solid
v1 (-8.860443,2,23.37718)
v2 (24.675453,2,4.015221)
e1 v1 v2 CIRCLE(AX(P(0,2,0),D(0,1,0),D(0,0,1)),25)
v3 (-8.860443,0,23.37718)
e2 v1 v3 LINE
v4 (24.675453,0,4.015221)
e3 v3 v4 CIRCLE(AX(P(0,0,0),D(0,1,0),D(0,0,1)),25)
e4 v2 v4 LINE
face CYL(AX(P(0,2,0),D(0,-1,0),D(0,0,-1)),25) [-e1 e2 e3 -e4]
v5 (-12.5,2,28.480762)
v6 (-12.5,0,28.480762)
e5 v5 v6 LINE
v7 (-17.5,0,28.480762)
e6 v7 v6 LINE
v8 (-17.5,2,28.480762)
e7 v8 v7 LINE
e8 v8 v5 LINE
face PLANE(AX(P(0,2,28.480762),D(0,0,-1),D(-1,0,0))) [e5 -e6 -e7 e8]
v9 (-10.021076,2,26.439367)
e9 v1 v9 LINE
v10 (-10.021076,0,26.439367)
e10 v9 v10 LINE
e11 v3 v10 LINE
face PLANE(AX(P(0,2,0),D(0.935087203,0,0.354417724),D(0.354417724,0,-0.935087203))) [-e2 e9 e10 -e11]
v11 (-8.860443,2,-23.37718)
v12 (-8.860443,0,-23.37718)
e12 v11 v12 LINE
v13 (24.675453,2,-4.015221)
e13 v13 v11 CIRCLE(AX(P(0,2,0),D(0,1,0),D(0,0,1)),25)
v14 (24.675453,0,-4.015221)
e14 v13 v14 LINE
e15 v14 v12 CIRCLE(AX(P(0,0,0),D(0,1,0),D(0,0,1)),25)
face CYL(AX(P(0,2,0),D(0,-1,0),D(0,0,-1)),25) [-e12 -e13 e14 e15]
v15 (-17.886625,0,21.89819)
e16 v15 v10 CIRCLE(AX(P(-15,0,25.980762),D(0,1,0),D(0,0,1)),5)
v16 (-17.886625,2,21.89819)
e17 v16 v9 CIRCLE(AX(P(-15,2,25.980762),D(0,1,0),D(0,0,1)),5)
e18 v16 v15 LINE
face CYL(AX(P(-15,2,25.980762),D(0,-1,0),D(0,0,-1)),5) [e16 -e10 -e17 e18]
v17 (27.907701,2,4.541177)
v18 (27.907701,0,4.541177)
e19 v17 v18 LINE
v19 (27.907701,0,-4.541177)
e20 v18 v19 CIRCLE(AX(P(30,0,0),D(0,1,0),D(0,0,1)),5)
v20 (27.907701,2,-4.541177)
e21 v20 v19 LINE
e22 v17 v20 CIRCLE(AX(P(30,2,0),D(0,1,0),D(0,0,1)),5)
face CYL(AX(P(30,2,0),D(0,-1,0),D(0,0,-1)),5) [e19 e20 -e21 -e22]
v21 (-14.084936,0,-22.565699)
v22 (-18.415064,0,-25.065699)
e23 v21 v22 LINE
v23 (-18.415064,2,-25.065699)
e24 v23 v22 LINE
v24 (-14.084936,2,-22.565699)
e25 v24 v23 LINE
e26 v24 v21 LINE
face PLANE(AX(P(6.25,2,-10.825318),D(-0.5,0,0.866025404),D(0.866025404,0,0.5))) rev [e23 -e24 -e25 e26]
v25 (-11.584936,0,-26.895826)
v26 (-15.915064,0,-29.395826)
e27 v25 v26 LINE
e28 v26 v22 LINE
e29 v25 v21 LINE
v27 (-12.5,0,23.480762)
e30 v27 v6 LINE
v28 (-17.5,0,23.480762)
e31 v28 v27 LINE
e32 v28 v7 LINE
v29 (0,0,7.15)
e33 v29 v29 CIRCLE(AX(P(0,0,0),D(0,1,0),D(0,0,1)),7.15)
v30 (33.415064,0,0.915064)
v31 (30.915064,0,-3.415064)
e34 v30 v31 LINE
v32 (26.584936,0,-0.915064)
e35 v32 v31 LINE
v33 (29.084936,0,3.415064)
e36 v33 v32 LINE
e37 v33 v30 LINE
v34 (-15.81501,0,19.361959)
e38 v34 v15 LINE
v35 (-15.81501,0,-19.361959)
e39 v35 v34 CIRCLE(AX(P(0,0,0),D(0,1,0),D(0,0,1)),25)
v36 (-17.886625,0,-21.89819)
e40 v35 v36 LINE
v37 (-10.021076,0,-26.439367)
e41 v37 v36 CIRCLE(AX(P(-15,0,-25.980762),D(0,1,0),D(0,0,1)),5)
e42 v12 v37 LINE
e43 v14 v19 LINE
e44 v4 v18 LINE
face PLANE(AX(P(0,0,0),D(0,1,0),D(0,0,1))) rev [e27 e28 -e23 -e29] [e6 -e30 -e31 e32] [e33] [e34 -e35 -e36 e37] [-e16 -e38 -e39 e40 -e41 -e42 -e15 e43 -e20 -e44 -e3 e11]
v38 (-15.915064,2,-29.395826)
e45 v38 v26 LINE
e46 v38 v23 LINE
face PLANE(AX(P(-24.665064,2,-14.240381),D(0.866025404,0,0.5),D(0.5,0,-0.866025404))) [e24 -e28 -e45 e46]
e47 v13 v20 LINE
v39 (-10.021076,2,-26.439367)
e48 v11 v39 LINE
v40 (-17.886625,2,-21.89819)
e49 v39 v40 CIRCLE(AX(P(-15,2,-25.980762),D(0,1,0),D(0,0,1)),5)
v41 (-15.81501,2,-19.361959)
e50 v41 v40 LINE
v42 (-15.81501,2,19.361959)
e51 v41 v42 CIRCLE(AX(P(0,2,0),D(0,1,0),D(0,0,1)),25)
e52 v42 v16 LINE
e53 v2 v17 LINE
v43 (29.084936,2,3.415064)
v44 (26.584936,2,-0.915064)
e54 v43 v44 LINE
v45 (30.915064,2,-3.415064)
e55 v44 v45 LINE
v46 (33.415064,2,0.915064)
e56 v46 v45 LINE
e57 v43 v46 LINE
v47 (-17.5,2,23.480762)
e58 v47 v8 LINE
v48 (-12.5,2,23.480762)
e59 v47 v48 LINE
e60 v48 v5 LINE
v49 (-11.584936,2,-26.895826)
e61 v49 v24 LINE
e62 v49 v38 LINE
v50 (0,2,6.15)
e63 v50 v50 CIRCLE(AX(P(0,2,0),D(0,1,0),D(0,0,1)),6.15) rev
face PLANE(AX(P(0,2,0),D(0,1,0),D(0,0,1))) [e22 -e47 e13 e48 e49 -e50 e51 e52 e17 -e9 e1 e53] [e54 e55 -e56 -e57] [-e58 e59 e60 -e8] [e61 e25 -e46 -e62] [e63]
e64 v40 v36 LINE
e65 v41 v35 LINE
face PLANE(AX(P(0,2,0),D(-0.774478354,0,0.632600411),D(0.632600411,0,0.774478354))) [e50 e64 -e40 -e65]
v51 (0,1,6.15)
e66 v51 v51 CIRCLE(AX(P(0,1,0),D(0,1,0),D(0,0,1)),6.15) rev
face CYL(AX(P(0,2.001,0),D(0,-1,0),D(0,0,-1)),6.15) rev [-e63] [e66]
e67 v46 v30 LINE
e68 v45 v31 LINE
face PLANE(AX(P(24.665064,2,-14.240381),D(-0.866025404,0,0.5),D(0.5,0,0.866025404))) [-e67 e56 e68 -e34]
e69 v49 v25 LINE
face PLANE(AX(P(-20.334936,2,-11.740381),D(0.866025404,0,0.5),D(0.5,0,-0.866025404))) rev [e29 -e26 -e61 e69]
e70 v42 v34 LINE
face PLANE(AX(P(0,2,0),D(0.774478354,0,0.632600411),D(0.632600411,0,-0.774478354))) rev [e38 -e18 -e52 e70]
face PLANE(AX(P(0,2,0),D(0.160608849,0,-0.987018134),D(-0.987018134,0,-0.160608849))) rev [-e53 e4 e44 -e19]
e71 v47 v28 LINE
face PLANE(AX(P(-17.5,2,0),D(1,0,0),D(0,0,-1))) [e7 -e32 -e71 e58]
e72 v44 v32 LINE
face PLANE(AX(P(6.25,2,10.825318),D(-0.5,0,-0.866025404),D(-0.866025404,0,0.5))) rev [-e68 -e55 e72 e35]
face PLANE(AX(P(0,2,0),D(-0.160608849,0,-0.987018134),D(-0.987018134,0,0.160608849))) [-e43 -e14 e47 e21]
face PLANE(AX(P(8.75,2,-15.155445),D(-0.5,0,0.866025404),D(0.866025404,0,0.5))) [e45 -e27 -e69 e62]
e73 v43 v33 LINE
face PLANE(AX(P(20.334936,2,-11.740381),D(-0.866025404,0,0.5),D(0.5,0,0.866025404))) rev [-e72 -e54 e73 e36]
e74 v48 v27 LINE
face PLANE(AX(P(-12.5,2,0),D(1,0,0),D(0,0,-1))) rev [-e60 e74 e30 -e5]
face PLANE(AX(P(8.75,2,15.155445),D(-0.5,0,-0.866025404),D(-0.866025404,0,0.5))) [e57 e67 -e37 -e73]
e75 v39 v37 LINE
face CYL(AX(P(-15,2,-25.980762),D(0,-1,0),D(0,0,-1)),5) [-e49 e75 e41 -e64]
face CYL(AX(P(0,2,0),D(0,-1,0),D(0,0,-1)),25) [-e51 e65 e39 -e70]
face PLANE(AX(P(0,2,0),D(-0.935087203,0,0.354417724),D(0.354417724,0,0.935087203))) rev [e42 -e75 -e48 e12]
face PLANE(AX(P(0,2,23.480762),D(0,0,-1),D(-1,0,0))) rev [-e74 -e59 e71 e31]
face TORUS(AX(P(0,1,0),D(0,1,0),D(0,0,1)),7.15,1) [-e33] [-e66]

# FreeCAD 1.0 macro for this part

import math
import FreeCAD as App
import Part
import Sketcher
Q = App.Units.Quantity


def edges_at(feature, points):
    """Names of the edges that pass closest to the given points."""
    edges = feature.Shape.Edges
    near = lambda p: min(range(len(edges)), key=lambda i: edges[i].distToShape(Part.Vertex(*p))[0])
    return sorted({f"Edge{near(p) + 1}" for p in points})


def add_polygon(sketch, points):
    """Adds a closed chain of lines whose ends are joined by coincident constraints."""
    first, n = sketch.GeometryCount, len(points)
    for a, b in zip(points, points[1:] + points[:1]):
        sketch.addGeometry(Part.LineSegment(App.Vector(*a, 0), App.Vector(*b, 0)), False)
    for i in range(n):
        sketch.addConstraint(Sketcher.Constraint("Coincident", first + i, 2, first + (i + 1) % n, 1))

doc = App.newDocument("Part")
params = doc.addObject("Spreadsheet::Sheet", "Params")
for row, (alias, value) in enumerate([
    ("sketch1_radius", "25 mm"),
    ("sketch1_radius2", "5 mm"),
    ("sketch1_width", "5 mm"),
    ("sketch1_length", "5 mm"),
    ("pad1_length", "2 mm"),
    ("sketch2_diameter", "12.3 mm"),
    ("fillet_radius", "1 mm"),
], start=1):
    params.set(f"A{row}", alias)
    params.set(f"B{row}", "=" + value)
    params.setAlias(f"B{row}", alias)

body = doc.addObject("PartDesign::Body", "Body")

# Sketch on XZ plane
sketch1 = doc.addObject("Sketcher::SketchObject", "Sketch")
body.addObject(sketch1)
sketch1.AttachmentSupport = (doc.XZ_Plane, [""])
sketch1.MapMode = "FlatFace"
sketch1.addGeometry(Part.LineSegment(App.Vector(-10, 26.4, 0), App.Vector(-8.9, 23.4, 0)), False)  # 0
sketch1.addGeometry(Part.ArcOfCircle(Part.Circle(App.Vector(0, 0, 0), App.Vector(0, 0, 1), 25), math.radians(9), math.radians(111)), False)  # 1
sketch1.addGeometry(Part.LineSegment(App.Vector(24.7, 4, 0), App.Vector(27.9, 4.5, 0)), False)  # 2
sketch1.addGeometry(Part.ArcOfCircle(Part.Circle(App.Vector(30, 0, 0), App.Vector(0, 0, 1), 5), math.radians(-115), math.radians(115)), False)  # 3
sketch1.addGeometry(Part.LineSegment(App.Vector(27.9, -4.5, 0), App.Vector(24.7, -4, 0)), False)  # 4
sketch1.addGeometry(Part.ArcOfCircle(Part.Circle(App.Vector(0, 0, 0), App.Vector(0, 0, 1), 25), math.radians(-111), math.radians(-9)), False)  # 5
sketch1.addGeometry(Part.LineSegment(App.Vector(-8.9, -23.4, 0), App.Vector(-10, -26.4, 0)), False)  # 6
sketch1.addGeometry(Part.ArcOfCircle(Part.Circle(App.Vector(-15, -26, 0), App.Vector(0, 0, 1), 5), math.radians(125), math.radians(355)), False)  # 7
sketch1.addGeometry(Part.LineSegment(App.Vector(-17.9, -21.9, 0), App.Vector(-15.8, -19.4, 0)), False)  # 8
sketch1.addGeometry(Part.ArcOfCircle(Part.Circle(App.Vector(0, 0, 0), App.Vector(0, 0, 1), 25), math.radians(129), math.radians(231)), False)  # 9
sketch1.addGeometry(Part.LineSegment(App.Vector(-15.8, 19.4, 0), App.Vector(-17.9, 21.9, 0)), False)  # 10
sketch1.addGeometry(Part.ArcOfCircle(Part.Circle(App.Vector(-15, 26, 0), App.Vector(0, 0, 1), 5), math.radians(5), math.radians(235)), False)  # 11
add_polygon(sketch1, [(-12.5, 28.5), (-17.5, 28.5), (-17.5, 23.5), (-12.5, 23.5)])  # lines 12-15
add_polygon(sketch1, [(29.1, 3.4), (26.6, -0.9), (30.9, -3.4), (33.4, 0.9)])  # lines 16-19
add_polygon(sketch1, [(-15.9, -29.4), (-11.6, -26.9), (-14.1, -22.6), (-18.4, -25.1)])  # lines 20-23
sketch1.addConstraint([
    Sketcher.Constraint("Coincident", 0, 2, 1, 2),
    Sketcher.Constraint("Coincident", 1, 1, 2, 1),
    Sketcher.Constraint("Coincident", 2, 2, 3, 2),
    Sketcher.Constraint("Coincident", 3, 1, 4, 1),
    Sketcher.Constraint("Coincident", 4, 2, 5, 2),
    Sketcher.Constraint("Coincident", 5, 1, 6, 1),
    Sketcher.Constraint("Coincident", 6, 2, 7, 2),
    Sketcher.Constraint("Coincident", 7, 1, 8, 1),
    Sketcher.Constraint("Coincident", 8, 2, 9, 2),
    Sketcher.Constraint("Coincident", 9, 1, 10, 1),
    Sketcher.Constraint("Coincident", 10, 2, 11, 2),
    Sketcher.Constraint("Coincident", 11, 1, 0, 1),
    Sketcher.Constraint("Horizontal", 12),
    Sketcher.Constraint("Vertical", 13),
    Sketcher.Constraint("Horizontal", 14),
    Sketcher.Constraint("Vertical", 15),
    Sketcher.Constraint("Coincident", 1, 3, -1, 1),
    Sketcher.Constraint("Coincident", 5, 3, -1, 1),
    Sketcher.Constraint("Coincident", 9, 3, -1, 1),
    Sketcher.Constraint("Equal", 1, 5),
    Sketcher.Constraint("Equal", 3, 7),
    Sketcher.Constraint("Equal", 5, 9),
    Sketcher.Constraint("Equal", 7, 11),
    Sketcher.Constraint("Symmetric", 7, 3, 11, 3, -1),
    Sketcher.Constraint("Symmetric", 2, 2, 3, 1, -1),
    Sketcher.Constraint("Perpendicular", 16, 17),
    Sketcher.Constraint("Perpendicular", 17, 18),
    Sketcher.Constraint("Perpendicular", 18, 19),
    Sketcher.Constraint("Perpendicular", 20, 21),
    Sketcher.Constraint("Perpendicular", 21, 22),
    Sketcher.Constraint("Perpendicular", 22, 23),
    Sketcher.Constraint("Vertical", 1, 1, 4, 2),
    Sketcher.Constraint("Vertical", 0, 2, 5, 1),
    Sketcher.Constraint("Vertical", 8, 2, 9, 1),
    Sketcher.Constraint("Vertical", 7, 1, 10, 2),
    Sketcher.Constraint("Vertical", 6, 2, 11, 1),
    Sketcher.Constraint("Equal", 14, 13),
    Sketcher.Constraint("Equal", 0, 2),
    Sketcher.Constraint("Equal", 6, 8),
    Sketcher.Constraint("Equal", 16, 17),
    Sketcher.Constraint("Equal", 19, 20),
    Sketcher.Constraint("Equal", 20, 21),
    Sketcher.Constraint("Radius", 1, Q("25 mm")),
    Sketcher.Constraint("Radius", 3, Q("5 mm")),
    Sketcher.Constraint("DistanceX", 12, 2, 12, 1, Q("5 mm")),
    Sketcher.Constraint("Angle", 16, Q("-120 deg")),
    Sketcher.Constraint("Angle", 20, Q("30 deg")),
    Sketcher.Constraint("Distance", 16, Q("5 mm")),
    Sketcher.Constraint("DistanceX", -1, 1, 3, 3, Q("30 mm")),
    Sketcher.Constraint("DistanceX", 7, 3, -1, 1, Q("15 mm")),
    Sketcher.Constraint("DistanceX", 12, 2, -1, 1, Q("17.5 mm")),
    Sketcher.Constraint("DistanceY", 11, 3, 12, 2, Q("2.5 mm")),
    Sketcher.Constraint("DistanceX", -1, 1, 2, 2, Q("27.907701 mm")),
    Sketcher.Constraint("DistanceY", 21, 2, -1, 1, Q("22.565699 mm")),
    Sketcher.Constraint("DistanceY", -1, 1, 0, 2, Q("23.37718 mm")),
    Sketcher.Constraint("DistanceY", -1, 1, 1, 1, Q("4.015221 mm")),
    Sketcher.Constraint("DistanceY", 7, 1, -1, 1, Q("21.89819 mm")),
    Sketcher.Constraint("DistanceX", 8, 2, -1, 1, Q("15.81501 mm")),
    Sketcher.Constraint("DistanceY", 16, 2, 2, 2, Q("5.45624 mm")),
    Sketcher.Constraint("DistanceX", 4, 2, 17, 2, Q("6.23961 mm")),
    Sketcher.Constraint("DistanceX", 20, 2, 6, 2, Q("1.56386 mm")),
])
sketch1.setExpression("Constraints[54]", "Params.sketch1_radius")
sketch1.setExpression("Constraints[55]", "Params.sketch1_radius2")
sketch1.setExpression("Constraints[56]", "Params.sketch1_width")
sketch1.setExpression("Constraints[59]", "Params.sketch1_length")
pad1 = doc.addObject("PartDesign::Pad", "Pad")
body.addObject(pad1)
pad1.Profile = sketch1
pad1.setExpression("Length", "Params.pad1_length")
pad1.Reversed = True

# Sketch on XZ plane
sketch2 = doc.addObject("Sketcher::SketchObject", "Sketch001")
body.addObject(sketch2)
sketch2.AttachmentSupport = (doc.XZ_Plane, [""])
sketch2.MapMode = "FlatFace"
sketch2.addGeometry(Part.Circle(App.Vector(0, 0, 0), App.Vector(0, 0, 1), 6), False)
sketch2.addConstraint([
    Sketcher.Constraint("Coincident", 0, 3, -1, 1),
    Sketcher.Constraint("Diameter", 0, Q("12.3 mm")),
])
sketch2.setExpression("Constraints[1]", "Params.sketch2_diameter")
pocket1 = doc.addObject("PartDesign::Pocket", "Pocket")
body.addObject(pocket1)
pocket1.Profile = sketch2
pocket1.Type = "UpToFirst"
doc.recompute()

fillet = doc.addObject("PartDesign::Fillet", "Fillet")
body.addObject(fillet)
fillet.Base = (pocket1, edges_at(pocket1, [(6.15, 0, 0)]))
fillet.setExpression("Radius", "Params.fillet_radius")

doc.recompute()
